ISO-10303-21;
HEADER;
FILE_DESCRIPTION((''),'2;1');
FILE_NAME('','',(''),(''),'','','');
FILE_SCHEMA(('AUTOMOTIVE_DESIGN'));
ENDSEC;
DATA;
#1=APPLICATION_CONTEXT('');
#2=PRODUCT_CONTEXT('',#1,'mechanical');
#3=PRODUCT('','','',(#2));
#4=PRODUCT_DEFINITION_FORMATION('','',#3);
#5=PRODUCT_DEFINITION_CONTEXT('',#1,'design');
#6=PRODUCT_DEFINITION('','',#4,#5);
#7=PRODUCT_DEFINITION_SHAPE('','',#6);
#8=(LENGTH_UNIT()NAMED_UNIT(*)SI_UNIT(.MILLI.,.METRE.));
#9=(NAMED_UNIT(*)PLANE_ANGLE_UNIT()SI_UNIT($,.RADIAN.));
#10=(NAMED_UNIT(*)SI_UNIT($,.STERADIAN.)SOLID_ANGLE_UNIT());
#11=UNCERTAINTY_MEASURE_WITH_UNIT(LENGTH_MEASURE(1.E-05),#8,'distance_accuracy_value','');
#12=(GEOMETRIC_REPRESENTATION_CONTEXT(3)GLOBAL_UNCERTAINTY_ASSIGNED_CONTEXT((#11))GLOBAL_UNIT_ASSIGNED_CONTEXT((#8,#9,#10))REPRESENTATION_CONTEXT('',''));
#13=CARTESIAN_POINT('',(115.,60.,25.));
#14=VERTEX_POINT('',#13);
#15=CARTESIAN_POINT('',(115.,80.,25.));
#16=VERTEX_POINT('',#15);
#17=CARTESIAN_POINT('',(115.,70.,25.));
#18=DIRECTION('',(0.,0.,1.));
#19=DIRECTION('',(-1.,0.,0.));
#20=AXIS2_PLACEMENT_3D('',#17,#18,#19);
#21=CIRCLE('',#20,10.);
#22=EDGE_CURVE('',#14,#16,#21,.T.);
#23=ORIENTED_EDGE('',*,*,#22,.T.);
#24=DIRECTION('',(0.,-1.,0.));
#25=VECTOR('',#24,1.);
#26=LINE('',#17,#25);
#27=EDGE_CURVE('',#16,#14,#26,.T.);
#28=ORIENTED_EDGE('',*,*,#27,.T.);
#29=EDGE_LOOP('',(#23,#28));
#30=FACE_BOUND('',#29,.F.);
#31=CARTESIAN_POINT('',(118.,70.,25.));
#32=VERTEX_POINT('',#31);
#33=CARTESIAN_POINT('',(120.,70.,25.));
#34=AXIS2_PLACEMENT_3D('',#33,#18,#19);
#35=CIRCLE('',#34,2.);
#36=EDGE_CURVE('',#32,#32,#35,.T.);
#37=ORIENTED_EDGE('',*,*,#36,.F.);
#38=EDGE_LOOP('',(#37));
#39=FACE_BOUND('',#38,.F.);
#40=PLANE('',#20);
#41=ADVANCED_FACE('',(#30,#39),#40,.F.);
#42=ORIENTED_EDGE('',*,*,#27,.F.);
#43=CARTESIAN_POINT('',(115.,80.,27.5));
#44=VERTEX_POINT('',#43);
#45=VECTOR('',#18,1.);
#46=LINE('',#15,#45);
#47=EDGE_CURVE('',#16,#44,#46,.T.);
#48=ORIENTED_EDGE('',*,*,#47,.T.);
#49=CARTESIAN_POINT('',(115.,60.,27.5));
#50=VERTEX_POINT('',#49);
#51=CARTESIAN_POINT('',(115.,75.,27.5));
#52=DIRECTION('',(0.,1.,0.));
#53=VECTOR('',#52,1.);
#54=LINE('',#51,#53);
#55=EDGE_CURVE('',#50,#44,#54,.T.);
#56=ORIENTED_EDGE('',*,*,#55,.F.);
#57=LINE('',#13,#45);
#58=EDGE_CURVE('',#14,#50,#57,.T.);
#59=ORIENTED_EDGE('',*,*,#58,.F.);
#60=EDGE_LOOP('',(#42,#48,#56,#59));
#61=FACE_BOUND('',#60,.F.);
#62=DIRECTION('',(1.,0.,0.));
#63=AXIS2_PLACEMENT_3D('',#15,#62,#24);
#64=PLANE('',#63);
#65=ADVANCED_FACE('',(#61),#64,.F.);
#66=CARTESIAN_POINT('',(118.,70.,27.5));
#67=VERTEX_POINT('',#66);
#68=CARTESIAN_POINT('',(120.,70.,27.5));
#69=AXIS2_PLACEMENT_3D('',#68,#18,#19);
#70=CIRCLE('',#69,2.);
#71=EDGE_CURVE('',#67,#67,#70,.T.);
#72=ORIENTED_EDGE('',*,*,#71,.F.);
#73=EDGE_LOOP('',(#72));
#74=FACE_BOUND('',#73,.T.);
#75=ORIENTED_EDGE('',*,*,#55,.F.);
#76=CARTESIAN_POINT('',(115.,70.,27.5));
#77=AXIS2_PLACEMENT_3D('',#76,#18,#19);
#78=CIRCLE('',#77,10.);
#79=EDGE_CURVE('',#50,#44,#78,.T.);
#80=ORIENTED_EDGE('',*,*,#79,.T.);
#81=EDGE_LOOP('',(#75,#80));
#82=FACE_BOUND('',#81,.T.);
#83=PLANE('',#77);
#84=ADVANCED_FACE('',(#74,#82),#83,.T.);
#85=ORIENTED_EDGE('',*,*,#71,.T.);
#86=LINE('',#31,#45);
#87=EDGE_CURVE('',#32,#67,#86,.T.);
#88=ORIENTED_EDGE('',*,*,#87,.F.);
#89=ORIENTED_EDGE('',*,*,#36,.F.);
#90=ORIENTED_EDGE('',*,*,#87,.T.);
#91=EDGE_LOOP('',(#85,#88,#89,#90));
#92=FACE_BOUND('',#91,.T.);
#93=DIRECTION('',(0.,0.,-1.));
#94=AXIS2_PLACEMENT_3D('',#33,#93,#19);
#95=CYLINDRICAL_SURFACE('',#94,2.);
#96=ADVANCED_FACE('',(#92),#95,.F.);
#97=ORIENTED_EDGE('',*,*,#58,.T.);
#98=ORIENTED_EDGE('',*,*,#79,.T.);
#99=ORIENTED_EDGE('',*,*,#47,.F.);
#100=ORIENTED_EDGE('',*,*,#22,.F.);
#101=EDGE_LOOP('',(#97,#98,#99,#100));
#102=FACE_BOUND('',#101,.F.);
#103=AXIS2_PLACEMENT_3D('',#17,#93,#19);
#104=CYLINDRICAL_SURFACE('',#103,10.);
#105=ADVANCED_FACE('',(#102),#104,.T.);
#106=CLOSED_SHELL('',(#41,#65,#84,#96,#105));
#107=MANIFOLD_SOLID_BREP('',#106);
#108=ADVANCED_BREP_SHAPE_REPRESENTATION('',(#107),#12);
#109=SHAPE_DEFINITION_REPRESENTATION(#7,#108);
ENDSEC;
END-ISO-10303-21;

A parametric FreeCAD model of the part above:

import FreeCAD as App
import Part
import Sketcher
from FreeCAD import Vector


def add_polygon(sketch, points):
    """Adds a closed chain of lines whose ends are joined by coincident constraints."""
    first, n = sketch.GeometryCount, len(points)
    for a, b in zip(points, points[1:] + points[:1]):
        sketch.addGeometry(Part.LineSegment(App.Vector(*a, 0), App.Vector(*b, 0)), False)
    for i in range(n):
        sketch.addConstraint(Sketcher.Constraint("Coincident", first + i, 2, first + (i + 1) % n, 1))

doc = App.newDocument("Part")
body = doc.addObject("PartDesign::Body", "Body")

sketch1 = body.newObject("Sketcher::SketchObject", "Sketch")
sketch1.AttachmentSupport = (doc.getObject("XY_Plane"), [""])
sketch1.MapMode = "FlatFace"
sketch1.AttachmentOffset = App.Placement(Vector(0, 0, 25), App.Rotation())
add_polygon(sketch1, [(0, 20), (0, 0), (10, 0), (10, 20)])
sketch1.addConstraint(Sketcher.Constraint("Vertical", 0))
sketch1.addConstraint(Sketcher.Constraint("Horizontal", 1))
sketch1.addConstraint(Sketcher.Constraint("Vertical", 2))
sketch1.addConstraint(Sketcher.Constraint("Horizontal", 3))
sketch1.addConstraint(Sketcher.Constraint("Coincident", 0, 2, -1, 1))
sketch1.addConstraint(Sketcher.Constraint("DistanceX", 1, 1, 1, 2, 10.0))
sketch1.addConstraint(Sketcher.Constraint("DistanceY", 0, 2, 0, 1, 20.0))
pad1 = body.newObject("PartDesign::Pad", "Pad")
pad1.Profile = sketch1
pad1.Length = 5
body2 = doc.addObject("PartDesign::Body", "Body001")

sketch2 = body2.newObject("Sketcher::SketchObject", "Sketch001")
sketch2.AttachmentSupport = (doc.getObject("XY_Plane001"), [""])
sketch2.MapMode = "FlatFace"
sketch2.AttachmentOffset = App.Placement(Vector(0, 0, 25), App.Rotation())
sketch2.addGeometry(Part.Circle(Vector(-5, 10, 0), Vector(0, 0, 1), 2), False)
sketch2.addConstraint(Sketcher.Constraint("Diameter", 0, 4.0))
sketch2.addConstraint(Sketcher.Constraint("DistanceX", 0, 3, -1, 1, 5.0))
sketch2.addConstraint(Sketcher.Constraint("DistanceY", -1, 1, 0, 3, 10.0))
pad2 = body2.newObject("PartDesign::Pad", "Pad001")
pad2.Profile = sketch2
pad2.Length = 2.5
body3 = doc.addObject("PartDesign::Body", "Body002")

sketch3 = body3.newObject("Sketcher::SketchObject", "Sketch002")
sketch3.AttachmentSupport = (doc.getObject("XY_Plane002"), [""])
sketch3.MapMode = "FlatFace"
sketch3.AttachmentOffset = App.Placement(Vector(0, 0, 25), App.Rotation())
sketch3.addGeometry(Part.Circle(Vector(0, 10, 0), Vector(0, 0, 1), 10), False)
sketch3.addConstraint(Sketcher.Constraint("PointOnObject", 0, 3, -2))
sketch3.addConstraint(Sketcher.Constraint("Diameter", 0, 20.0))
sketch3.addConstraint(Sketcher.Constraint("DistanceY", -1, 1, 0, 3, 10.0))
pad3 = body3.newObject("PartDesign::Pad", "Pad002")
pad3.Profile = sketch3
pad3.Length = 2.5
doc.recompute()

boolean = body3.newObject("PartDesign::Boolean", "Boolean")
boolean.Type = "Cut"
boolean.addObjects([body2])
doc.recompute()

boolean2 = body3.newObject("PartDesign::Boolean", "Boolean001")
boolean2.Type = "Cut"
boolean2.addObjects([body])
body4 = doc.addObject("PartDesign::Body", "Body003")
doc.recompute()

body3.Placement = App.Placement(Vector(115, 80, 0), App.Rotation(Vector(0, 0, 1), 180))
boolean3 = body4.newObject("PartDesign::Boolean", "Boolean002")
boolean3.Type = "Fuse"
boolean3.addObjects([body3])

doc.recompute()
